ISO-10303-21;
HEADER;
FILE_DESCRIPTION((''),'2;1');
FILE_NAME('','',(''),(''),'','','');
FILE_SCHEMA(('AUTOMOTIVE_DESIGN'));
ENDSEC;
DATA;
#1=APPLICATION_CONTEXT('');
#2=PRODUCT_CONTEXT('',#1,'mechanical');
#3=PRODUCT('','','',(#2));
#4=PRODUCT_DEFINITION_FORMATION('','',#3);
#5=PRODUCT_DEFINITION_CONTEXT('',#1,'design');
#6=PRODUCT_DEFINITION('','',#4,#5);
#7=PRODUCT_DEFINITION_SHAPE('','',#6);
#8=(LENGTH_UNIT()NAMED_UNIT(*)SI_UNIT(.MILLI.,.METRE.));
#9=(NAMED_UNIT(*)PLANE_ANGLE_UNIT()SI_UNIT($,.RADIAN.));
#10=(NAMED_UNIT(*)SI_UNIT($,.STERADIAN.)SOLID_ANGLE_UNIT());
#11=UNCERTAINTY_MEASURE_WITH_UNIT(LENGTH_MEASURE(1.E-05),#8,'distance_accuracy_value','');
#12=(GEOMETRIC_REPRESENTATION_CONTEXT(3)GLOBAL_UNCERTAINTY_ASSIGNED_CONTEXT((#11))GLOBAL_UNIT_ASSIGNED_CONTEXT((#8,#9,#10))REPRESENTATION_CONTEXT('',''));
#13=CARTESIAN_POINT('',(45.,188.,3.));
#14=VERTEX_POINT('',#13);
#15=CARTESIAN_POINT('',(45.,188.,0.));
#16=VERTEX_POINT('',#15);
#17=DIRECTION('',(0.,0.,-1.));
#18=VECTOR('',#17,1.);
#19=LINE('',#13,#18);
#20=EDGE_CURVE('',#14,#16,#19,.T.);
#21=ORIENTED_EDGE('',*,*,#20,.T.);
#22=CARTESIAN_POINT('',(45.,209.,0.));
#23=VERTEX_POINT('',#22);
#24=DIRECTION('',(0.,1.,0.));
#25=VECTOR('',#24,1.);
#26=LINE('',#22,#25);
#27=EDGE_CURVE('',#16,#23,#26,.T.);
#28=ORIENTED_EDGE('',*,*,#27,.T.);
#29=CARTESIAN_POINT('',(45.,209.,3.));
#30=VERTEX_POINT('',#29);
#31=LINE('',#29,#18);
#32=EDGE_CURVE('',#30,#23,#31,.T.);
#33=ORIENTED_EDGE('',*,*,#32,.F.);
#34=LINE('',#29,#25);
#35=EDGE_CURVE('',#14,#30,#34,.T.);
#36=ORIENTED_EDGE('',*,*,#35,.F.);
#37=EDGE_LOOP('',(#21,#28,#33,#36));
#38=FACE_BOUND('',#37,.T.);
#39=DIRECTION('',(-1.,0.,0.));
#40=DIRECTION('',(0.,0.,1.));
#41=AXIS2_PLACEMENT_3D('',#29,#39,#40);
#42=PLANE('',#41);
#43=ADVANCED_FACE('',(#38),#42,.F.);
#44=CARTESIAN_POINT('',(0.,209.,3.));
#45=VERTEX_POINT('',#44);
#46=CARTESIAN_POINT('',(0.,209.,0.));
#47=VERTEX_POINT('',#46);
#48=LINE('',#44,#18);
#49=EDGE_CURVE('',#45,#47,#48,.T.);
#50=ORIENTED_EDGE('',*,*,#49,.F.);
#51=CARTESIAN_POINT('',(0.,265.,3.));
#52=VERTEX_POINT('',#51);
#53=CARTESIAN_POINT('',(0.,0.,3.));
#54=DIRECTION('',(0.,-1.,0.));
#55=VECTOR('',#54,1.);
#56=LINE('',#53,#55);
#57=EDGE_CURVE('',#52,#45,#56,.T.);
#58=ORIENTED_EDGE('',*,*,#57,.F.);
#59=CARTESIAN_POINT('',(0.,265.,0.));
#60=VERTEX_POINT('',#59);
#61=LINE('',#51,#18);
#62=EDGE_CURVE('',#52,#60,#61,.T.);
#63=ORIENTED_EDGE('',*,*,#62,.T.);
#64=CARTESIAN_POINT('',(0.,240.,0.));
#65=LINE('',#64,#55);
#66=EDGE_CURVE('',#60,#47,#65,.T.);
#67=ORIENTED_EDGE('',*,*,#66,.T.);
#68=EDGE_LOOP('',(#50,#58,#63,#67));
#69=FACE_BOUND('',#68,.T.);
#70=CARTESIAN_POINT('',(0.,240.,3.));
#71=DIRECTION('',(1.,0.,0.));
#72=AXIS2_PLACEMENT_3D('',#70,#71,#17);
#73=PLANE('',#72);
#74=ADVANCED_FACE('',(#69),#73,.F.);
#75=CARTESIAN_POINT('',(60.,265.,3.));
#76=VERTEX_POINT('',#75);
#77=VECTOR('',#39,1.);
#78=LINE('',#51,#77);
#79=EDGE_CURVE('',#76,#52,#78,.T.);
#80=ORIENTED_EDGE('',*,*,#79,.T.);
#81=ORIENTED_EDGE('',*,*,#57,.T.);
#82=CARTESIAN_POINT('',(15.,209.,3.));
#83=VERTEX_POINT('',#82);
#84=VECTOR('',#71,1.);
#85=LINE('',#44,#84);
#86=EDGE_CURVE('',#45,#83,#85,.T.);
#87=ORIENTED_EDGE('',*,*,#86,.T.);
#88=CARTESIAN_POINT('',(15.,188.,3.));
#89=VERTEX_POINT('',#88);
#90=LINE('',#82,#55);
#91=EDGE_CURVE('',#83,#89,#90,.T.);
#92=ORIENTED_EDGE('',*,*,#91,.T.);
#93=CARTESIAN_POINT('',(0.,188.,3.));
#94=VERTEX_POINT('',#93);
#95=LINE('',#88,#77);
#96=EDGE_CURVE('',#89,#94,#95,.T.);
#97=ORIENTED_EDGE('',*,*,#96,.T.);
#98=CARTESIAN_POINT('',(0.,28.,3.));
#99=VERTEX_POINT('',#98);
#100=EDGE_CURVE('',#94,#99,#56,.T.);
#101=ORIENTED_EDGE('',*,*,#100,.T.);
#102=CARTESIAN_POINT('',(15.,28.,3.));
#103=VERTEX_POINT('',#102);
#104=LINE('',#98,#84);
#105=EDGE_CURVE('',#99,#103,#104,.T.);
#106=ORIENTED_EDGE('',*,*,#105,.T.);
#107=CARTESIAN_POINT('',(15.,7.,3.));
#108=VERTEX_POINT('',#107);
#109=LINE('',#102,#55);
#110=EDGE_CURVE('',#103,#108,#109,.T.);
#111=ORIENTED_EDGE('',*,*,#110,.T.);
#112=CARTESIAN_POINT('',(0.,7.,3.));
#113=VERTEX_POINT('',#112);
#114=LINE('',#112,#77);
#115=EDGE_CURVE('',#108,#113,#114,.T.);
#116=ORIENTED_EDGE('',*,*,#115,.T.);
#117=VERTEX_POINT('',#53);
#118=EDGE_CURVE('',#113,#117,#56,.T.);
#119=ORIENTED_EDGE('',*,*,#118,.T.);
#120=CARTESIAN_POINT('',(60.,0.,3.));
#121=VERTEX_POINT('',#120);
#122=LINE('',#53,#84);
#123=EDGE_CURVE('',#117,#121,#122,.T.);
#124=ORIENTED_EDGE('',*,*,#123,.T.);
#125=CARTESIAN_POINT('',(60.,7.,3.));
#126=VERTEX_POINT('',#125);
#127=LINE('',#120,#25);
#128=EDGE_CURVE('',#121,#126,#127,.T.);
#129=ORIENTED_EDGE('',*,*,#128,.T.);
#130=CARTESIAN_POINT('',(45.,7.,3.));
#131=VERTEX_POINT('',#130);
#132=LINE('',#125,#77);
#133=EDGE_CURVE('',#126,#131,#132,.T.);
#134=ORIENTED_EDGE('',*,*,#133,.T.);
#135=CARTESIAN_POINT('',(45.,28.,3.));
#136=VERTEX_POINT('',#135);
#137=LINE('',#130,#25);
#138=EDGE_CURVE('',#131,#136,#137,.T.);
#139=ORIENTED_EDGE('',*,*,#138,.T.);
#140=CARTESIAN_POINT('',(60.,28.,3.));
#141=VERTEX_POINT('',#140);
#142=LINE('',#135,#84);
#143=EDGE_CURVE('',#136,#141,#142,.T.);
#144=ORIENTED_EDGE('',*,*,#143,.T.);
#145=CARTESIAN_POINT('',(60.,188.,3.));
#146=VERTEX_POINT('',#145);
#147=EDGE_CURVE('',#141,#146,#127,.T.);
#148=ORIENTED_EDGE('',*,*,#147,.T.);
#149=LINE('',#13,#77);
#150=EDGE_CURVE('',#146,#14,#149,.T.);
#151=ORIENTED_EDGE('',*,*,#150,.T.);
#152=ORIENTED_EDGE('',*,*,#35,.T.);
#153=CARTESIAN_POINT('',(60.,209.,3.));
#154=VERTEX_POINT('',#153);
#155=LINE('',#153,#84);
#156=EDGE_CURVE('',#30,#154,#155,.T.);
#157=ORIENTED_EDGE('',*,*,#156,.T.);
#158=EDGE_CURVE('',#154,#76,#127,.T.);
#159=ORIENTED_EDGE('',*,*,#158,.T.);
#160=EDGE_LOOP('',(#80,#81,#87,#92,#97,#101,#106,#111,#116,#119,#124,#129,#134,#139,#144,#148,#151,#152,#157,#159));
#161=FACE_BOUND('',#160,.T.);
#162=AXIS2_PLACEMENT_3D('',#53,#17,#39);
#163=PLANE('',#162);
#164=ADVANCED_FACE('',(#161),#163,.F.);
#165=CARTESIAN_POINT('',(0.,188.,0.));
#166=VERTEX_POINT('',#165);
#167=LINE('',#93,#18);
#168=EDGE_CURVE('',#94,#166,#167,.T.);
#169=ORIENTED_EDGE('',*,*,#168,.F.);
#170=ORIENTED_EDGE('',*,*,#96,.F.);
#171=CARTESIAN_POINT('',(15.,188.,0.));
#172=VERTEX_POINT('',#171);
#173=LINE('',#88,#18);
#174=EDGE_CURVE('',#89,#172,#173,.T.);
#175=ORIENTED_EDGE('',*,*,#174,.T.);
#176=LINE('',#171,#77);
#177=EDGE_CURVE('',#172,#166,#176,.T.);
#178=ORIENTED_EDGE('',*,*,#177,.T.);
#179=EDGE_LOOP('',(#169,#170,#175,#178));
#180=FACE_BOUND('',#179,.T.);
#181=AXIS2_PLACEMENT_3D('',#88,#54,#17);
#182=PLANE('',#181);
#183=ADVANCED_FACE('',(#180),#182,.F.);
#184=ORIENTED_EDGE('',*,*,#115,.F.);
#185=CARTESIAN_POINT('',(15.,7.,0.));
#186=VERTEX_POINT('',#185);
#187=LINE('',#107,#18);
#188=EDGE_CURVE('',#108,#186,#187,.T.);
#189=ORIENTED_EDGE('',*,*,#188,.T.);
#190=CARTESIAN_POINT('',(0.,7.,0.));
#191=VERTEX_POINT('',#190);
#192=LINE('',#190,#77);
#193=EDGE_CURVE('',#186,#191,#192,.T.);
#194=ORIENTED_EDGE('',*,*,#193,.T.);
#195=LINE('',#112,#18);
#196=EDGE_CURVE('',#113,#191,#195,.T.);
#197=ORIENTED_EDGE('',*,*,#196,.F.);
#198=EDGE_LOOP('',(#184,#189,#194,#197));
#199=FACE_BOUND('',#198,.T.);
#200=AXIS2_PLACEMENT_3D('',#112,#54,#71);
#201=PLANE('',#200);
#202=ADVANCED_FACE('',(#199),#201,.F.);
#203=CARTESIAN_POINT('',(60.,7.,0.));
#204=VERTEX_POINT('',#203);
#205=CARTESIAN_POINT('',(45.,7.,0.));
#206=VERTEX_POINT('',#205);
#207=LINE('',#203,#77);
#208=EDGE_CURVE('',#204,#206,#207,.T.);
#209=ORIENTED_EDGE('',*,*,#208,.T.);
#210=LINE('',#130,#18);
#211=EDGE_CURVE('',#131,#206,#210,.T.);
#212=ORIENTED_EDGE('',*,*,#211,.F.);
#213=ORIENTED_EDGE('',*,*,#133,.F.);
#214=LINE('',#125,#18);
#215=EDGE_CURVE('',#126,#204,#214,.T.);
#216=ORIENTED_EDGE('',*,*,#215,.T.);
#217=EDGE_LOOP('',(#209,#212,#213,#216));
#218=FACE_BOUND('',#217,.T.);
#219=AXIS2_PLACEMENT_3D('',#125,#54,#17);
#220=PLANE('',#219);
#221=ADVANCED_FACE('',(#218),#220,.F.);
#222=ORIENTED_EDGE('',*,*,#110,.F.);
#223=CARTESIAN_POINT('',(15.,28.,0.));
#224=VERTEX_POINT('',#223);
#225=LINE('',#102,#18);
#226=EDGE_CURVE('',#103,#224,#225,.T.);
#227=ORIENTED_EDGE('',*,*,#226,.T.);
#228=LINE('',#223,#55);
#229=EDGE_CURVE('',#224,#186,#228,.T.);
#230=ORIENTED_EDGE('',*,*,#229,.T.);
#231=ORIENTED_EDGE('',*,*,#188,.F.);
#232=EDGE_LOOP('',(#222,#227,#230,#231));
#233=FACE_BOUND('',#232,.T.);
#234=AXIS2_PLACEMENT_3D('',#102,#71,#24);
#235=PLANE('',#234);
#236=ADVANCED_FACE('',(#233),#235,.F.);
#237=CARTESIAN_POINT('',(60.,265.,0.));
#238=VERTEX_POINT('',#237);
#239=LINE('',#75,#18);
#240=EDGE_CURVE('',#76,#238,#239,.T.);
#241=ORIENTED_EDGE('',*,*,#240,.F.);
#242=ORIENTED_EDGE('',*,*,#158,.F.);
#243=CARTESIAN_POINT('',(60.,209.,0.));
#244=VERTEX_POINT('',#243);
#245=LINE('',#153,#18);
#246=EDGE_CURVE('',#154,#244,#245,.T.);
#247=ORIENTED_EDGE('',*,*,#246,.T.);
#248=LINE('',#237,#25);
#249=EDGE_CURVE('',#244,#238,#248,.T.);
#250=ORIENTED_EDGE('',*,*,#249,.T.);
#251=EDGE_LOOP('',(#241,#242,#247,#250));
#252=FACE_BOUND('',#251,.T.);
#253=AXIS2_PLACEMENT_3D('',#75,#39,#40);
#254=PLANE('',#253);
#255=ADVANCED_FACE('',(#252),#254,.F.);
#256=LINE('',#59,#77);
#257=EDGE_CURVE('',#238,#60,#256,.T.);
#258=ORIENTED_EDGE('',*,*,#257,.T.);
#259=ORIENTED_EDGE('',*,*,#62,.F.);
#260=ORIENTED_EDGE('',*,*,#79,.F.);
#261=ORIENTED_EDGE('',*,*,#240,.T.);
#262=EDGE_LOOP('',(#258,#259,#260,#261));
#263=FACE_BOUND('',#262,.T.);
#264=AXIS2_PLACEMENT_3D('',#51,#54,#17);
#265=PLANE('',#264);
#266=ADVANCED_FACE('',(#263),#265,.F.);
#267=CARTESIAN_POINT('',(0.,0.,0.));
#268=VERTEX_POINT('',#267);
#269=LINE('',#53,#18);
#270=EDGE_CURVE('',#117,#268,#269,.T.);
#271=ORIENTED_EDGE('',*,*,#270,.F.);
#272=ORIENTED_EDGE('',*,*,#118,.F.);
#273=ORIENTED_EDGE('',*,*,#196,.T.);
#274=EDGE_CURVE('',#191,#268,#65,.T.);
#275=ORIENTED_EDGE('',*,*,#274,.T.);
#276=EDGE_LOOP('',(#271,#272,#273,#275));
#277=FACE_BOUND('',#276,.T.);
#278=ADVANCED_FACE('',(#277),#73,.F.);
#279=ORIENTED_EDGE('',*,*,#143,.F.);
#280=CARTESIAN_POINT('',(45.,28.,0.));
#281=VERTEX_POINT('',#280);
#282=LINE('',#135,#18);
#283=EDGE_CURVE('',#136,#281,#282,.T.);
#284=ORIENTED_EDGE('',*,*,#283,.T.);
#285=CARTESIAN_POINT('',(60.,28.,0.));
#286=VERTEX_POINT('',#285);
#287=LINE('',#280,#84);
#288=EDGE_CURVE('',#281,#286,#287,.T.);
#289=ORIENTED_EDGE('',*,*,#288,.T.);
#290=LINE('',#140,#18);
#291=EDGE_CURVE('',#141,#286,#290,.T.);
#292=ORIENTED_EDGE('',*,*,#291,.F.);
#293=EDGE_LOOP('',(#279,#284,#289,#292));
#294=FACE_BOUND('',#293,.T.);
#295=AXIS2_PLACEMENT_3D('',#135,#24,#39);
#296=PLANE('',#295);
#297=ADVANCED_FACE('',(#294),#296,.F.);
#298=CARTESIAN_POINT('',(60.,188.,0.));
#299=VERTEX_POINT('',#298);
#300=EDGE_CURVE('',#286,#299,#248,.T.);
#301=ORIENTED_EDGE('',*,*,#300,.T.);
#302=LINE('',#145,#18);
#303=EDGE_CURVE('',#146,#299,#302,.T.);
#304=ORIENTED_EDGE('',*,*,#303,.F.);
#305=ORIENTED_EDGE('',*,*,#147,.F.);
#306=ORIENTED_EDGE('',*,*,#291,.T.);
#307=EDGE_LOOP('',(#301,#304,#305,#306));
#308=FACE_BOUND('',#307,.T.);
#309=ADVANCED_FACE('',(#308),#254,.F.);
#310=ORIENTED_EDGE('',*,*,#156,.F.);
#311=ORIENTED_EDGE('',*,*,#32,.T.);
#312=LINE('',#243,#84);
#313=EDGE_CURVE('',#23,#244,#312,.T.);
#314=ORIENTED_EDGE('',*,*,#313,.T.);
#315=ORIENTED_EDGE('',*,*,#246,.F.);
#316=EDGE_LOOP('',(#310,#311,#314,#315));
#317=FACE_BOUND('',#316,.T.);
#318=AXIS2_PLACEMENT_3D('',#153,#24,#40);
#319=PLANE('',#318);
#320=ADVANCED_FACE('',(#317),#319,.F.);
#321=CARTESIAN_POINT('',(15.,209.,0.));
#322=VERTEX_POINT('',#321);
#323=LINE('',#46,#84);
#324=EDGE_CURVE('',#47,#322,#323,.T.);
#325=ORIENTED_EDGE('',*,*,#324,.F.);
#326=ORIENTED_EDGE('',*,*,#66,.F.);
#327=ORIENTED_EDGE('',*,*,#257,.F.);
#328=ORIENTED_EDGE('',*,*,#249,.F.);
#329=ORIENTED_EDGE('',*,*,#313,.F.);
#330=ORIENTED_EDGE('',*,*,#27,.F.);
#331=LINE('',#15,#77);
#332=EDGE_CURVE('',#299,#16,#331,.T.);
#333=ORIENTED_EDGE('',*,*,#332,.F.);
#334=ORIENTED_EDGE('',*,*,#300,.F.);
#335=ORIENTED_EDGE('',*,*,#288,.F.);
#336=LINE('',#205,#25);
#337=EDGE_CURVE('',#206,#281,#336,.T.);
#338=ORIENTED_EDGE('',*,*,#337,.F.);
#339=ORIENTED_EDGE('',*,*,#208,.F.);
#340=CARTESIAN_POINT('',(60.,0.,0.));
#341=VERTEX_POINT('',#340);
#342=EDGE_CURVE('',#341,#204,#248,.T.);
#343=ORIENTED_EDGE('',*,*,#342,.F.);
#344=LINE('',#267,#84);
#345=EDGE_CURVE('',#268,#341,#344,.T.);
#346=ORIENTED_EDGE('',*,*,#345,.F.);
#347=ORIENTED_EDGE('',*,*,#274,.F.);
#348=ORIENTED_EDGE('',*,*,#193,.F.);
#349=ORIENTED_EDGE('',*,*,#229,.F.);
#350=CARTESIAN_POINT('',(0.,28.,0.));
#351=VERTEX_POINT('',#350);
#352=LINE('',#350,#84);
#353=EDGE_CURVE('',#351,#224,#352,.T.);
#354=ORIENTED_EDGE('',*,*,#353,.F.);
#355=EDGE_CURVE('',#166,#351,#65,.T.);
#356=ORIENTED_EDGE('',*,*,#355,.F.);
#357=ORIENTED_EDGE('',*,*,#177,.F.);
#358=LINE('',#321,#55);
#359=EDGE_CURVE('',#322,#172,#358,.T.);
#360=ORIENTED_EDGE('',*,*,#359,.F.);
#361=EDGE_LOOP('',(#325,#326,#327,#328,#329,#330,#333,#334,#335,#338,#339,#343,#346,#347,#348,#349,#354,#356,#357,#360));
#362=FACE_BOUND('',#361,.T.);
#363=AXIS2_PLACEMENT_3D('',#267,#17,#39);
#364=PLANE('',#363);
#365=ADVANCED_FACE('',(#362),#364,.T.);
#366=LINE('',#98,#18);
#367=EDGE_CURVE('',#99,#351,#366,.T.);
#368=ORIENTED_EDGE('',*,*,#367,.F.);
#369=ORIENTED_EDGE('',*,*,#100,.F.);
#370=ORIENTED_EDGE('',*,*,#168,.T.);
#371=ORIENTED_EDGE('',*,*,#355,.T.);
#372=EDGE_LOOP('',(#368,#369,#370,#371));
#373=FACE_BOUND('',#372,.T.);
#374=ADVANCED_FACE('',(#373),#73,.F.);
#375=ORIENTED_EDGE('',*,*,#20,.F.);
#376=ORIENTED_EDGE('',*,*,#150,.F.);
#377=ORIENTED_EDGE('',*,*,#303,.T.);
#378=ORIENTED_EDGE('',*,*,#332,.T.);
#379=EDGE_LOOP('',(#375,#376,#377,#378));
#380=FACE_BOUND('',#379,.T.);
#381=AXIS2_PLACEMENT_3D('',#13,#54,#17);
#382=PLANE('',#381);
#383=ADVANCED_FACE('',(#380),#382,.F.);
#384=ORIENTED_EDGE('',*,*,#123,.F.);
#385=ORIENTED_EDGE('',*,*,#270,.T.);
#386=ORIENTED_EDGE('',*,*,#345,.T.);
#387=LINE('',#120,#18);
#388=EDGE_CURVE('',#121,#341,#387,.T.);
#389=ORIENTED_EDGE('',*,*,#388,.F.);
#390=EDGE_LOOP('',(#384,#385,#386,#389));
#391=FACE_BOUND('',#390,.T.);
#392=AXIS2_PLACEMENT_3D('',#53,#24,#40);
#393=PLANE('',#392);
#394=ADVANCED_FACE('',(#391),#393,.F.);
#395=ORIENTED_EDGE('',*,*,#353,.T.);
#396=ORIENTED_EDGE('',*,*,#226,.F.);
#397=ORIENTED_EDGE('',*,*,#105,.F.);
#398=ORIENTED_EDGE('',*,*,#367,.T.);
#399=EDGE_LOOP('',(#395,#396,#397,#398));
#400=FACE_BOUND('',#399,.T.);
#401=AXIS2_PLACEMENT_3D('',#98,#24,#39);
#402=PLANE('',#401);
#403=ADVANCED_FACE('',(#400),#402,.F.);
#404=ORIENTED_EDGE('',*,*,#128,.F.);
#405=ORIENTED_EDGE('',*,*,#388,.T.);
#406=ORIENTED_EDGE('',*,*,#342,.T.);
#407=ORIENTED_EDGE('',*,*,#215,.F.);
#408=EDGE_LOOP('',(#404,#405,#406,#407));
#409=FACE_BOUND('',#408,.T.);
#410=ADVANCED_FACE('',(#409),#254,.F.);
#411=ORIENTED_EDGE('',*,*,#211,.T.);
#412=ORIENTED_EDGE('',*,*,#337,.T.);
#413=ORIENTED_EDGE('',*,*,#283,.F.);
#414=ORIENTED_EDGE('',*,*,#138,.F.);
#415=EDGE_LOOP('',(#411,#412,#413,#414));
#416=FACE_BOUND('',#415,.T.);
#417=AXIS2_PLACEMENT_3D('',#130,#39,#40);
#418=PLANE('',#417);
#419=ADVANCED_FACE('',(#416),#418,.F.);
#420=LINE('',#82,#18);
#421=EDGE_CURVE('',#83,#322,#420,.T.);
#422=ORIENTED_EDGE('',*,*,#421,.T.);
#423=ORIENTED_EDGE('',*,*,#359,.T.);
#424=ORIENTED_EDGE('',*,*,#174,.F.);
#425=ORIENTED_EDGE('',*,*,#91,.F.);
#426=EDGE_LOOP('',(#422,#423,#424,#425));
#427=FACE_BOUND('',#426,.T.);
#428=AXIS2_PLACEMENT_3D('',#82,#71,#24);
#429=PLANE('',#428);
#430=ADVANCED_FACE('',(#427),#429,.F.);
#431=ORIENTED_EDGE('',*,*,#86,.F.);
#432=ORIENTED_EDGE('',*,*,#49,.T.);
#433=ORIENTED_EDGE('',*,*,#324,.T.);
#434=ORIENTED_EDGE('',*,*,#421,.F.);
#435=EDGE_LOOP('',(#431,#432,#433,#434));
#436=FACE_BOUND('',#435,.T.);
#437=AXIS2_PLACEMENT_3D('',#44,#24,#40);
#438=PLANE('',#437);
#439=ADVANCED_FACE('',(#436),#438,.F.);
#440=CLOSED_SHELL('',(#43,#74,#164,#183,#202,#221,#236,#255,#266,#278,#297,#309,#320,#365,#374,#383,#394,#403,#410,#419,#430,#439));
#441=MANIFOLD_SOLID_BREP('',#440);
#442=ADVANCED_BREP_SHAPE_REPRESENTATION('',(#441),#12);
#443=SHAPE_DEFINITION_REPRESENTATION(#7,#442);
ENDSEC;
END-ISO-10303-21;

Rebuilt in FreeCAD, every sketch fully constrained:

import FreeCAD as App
import Part
import Sketcher

V = App.Vector
Q = App.Units.Quantity


def add_polygon(sketch, points):
    """Adds a closed chain of lines whose ends are joined by coincident constraints."""
    first, n = sketch.GeometryCount, len(points)
    for a, b in zip(points, points[1:] + points[:1]):
        sketch.addGeometry(Part.LineSegment(App.Vector(*a, 0), App.Vector(*b, 0)), False)
    for i in range(n):
        sketch.addConstraint(Sketcher.Constraint("Coincident", first + i, 2, first + (i + 1) % n, 1))

doc = App.newDocument("Part")
body = doc.addObject("PartDesign::Body", "Body")

sketch1 = doc.addObject("Sketcher::SketchObject", "Sketch")
body.addObject(sketch1)
sketch1.AttachmentSupport = (doc.XY_Plane, [""])
sketch1.MapMode = "FlatFace"
add_polygon(sketch1, [(0, 265), (0, 0), (60, 0), (60, 265)])
sketch1.addConstraint([
    Sketcher.Constraint("Vertical", 0),
    Sketcher.Constraint("Horizontal", 1),
    Sketcher.Constraint("Vertical", 2),
    Sketcher.Constraint("Horizontal", 3),
    Sketcher.Constraint("Coincident", 0, 2, -1, 1),
    Sketcher.Constraint("DistanceX", 1, 1, 1, 2, Q("60 mm")),
    Sketcher.Constraint("DistanceY", 0, 2, 0, 1, Q("265 mm")),
])
pad1 = doc.addObject("PartDesign::Pad", "Pad")
body.addObject(pad1)
pad1.Profile = sketch1
pad1.Length = 3

sketch2 = doc.addObject("Sketcher::SketchObject", "Sketch001")
body.addObject(sketch2)
sketch2.AttachmentSupport = (doc.XY_Plane, [""])
sketch2.MapMode = "FlatFace"
add_polygon(sketch2, [(60, 28), (60, 7), (45, 7), (45, 28)])
add_polygon(sketch2, [(15, 28), (15, 7), (0, 7), (0, 28)])
add_polygon(sketch2, [(15, 209), (15, 188), (0, 188), (0, 209)])
add_polygon(sketch2, [(60, 209), (60, 188), (45, 188), (45, 209)])
sketch2.addConstraint([
    Sketcher.Constraint("Vertical", 0),
    Sketcher.Constraint("Horizontal", 1),
    Sketcher.Constraint("Vertical", 2),
    Sketcher.Constraint("Horizontal", 3),
    Sketcher.Constraint("Vertical", 4),
    Sketcher.Constraint("Horizontal", 5),
    Sketcher.Constraint("Vertical", 6),
    Sketcher.Constraint("Horizontal", 7),
    Sketcher.Constraint("Vertical", 8),
    Sketcher.Constraint("Horizontal", 9),
    Sketcher.Constraint("Vertical", 10),
    Sketcher.Constraint("Horizontal", 11),
    Sketcher.Constraint("Vertical", 12),
    Sketcher.Constraint("Horizontal", 13),
    Sketcher.Constraint("Vertical", 14),
    Sketcher.Constraint("Horizontal", 15),
    Sketcher.Constraint("PointOnObject", 5, 2, -2),
    Sketcher.Constraint("PointOnObject", 9, 2, -2),
    Sketcher.Constraint("Horizontal", 1, 2, 4, 2),
    Sketcher.Constraint("Horizontal", 3, 2, 6, 2),
    Sketcher.Constraint("Horizontal", 9, 2, 12, 2),
    Sketcher.Constraint("Horizontal", 11, 2, 14, 2),
    Sketcher.Constraint("Vertical", 7, 2, 8, 2),
    Sketcher.Constraint("Vertical", 3, 2, 12, 2),
    Sketcher.Constraint("Vertical", 2, 2, 13, 2),
    Sketcher.Constraint("Equal", 3, 5),
    Sketcher.Constraint("Equal", 6, 8),
    Sketcher.Constraint("DistanceX", 1, 2, 1, 1, Q("15 mm")),
    Sketcher.Constraint("DistanceY", 0, 2, 0, 1, Q("21 mm")),
    Sketcher.Constraint("DistanceX", -1, 1, 0, 2, Q("60 mm")),
    Sketcher.Constraint("DistanceY", -1, 1, 0, 2, Q("7 mm")),
    Sketcher.Constraint("DistanceY", -1, 1, 8, 2, Q("188 mm")),
])
pocket1 = doc.addObject("PartDesign::Pocket", "Pocket")
body.addObject(pocket1)
pocket1.Profile = sketch2
pocket1.Length = 3
pocket1.Reversed = True

doc.recompute()
